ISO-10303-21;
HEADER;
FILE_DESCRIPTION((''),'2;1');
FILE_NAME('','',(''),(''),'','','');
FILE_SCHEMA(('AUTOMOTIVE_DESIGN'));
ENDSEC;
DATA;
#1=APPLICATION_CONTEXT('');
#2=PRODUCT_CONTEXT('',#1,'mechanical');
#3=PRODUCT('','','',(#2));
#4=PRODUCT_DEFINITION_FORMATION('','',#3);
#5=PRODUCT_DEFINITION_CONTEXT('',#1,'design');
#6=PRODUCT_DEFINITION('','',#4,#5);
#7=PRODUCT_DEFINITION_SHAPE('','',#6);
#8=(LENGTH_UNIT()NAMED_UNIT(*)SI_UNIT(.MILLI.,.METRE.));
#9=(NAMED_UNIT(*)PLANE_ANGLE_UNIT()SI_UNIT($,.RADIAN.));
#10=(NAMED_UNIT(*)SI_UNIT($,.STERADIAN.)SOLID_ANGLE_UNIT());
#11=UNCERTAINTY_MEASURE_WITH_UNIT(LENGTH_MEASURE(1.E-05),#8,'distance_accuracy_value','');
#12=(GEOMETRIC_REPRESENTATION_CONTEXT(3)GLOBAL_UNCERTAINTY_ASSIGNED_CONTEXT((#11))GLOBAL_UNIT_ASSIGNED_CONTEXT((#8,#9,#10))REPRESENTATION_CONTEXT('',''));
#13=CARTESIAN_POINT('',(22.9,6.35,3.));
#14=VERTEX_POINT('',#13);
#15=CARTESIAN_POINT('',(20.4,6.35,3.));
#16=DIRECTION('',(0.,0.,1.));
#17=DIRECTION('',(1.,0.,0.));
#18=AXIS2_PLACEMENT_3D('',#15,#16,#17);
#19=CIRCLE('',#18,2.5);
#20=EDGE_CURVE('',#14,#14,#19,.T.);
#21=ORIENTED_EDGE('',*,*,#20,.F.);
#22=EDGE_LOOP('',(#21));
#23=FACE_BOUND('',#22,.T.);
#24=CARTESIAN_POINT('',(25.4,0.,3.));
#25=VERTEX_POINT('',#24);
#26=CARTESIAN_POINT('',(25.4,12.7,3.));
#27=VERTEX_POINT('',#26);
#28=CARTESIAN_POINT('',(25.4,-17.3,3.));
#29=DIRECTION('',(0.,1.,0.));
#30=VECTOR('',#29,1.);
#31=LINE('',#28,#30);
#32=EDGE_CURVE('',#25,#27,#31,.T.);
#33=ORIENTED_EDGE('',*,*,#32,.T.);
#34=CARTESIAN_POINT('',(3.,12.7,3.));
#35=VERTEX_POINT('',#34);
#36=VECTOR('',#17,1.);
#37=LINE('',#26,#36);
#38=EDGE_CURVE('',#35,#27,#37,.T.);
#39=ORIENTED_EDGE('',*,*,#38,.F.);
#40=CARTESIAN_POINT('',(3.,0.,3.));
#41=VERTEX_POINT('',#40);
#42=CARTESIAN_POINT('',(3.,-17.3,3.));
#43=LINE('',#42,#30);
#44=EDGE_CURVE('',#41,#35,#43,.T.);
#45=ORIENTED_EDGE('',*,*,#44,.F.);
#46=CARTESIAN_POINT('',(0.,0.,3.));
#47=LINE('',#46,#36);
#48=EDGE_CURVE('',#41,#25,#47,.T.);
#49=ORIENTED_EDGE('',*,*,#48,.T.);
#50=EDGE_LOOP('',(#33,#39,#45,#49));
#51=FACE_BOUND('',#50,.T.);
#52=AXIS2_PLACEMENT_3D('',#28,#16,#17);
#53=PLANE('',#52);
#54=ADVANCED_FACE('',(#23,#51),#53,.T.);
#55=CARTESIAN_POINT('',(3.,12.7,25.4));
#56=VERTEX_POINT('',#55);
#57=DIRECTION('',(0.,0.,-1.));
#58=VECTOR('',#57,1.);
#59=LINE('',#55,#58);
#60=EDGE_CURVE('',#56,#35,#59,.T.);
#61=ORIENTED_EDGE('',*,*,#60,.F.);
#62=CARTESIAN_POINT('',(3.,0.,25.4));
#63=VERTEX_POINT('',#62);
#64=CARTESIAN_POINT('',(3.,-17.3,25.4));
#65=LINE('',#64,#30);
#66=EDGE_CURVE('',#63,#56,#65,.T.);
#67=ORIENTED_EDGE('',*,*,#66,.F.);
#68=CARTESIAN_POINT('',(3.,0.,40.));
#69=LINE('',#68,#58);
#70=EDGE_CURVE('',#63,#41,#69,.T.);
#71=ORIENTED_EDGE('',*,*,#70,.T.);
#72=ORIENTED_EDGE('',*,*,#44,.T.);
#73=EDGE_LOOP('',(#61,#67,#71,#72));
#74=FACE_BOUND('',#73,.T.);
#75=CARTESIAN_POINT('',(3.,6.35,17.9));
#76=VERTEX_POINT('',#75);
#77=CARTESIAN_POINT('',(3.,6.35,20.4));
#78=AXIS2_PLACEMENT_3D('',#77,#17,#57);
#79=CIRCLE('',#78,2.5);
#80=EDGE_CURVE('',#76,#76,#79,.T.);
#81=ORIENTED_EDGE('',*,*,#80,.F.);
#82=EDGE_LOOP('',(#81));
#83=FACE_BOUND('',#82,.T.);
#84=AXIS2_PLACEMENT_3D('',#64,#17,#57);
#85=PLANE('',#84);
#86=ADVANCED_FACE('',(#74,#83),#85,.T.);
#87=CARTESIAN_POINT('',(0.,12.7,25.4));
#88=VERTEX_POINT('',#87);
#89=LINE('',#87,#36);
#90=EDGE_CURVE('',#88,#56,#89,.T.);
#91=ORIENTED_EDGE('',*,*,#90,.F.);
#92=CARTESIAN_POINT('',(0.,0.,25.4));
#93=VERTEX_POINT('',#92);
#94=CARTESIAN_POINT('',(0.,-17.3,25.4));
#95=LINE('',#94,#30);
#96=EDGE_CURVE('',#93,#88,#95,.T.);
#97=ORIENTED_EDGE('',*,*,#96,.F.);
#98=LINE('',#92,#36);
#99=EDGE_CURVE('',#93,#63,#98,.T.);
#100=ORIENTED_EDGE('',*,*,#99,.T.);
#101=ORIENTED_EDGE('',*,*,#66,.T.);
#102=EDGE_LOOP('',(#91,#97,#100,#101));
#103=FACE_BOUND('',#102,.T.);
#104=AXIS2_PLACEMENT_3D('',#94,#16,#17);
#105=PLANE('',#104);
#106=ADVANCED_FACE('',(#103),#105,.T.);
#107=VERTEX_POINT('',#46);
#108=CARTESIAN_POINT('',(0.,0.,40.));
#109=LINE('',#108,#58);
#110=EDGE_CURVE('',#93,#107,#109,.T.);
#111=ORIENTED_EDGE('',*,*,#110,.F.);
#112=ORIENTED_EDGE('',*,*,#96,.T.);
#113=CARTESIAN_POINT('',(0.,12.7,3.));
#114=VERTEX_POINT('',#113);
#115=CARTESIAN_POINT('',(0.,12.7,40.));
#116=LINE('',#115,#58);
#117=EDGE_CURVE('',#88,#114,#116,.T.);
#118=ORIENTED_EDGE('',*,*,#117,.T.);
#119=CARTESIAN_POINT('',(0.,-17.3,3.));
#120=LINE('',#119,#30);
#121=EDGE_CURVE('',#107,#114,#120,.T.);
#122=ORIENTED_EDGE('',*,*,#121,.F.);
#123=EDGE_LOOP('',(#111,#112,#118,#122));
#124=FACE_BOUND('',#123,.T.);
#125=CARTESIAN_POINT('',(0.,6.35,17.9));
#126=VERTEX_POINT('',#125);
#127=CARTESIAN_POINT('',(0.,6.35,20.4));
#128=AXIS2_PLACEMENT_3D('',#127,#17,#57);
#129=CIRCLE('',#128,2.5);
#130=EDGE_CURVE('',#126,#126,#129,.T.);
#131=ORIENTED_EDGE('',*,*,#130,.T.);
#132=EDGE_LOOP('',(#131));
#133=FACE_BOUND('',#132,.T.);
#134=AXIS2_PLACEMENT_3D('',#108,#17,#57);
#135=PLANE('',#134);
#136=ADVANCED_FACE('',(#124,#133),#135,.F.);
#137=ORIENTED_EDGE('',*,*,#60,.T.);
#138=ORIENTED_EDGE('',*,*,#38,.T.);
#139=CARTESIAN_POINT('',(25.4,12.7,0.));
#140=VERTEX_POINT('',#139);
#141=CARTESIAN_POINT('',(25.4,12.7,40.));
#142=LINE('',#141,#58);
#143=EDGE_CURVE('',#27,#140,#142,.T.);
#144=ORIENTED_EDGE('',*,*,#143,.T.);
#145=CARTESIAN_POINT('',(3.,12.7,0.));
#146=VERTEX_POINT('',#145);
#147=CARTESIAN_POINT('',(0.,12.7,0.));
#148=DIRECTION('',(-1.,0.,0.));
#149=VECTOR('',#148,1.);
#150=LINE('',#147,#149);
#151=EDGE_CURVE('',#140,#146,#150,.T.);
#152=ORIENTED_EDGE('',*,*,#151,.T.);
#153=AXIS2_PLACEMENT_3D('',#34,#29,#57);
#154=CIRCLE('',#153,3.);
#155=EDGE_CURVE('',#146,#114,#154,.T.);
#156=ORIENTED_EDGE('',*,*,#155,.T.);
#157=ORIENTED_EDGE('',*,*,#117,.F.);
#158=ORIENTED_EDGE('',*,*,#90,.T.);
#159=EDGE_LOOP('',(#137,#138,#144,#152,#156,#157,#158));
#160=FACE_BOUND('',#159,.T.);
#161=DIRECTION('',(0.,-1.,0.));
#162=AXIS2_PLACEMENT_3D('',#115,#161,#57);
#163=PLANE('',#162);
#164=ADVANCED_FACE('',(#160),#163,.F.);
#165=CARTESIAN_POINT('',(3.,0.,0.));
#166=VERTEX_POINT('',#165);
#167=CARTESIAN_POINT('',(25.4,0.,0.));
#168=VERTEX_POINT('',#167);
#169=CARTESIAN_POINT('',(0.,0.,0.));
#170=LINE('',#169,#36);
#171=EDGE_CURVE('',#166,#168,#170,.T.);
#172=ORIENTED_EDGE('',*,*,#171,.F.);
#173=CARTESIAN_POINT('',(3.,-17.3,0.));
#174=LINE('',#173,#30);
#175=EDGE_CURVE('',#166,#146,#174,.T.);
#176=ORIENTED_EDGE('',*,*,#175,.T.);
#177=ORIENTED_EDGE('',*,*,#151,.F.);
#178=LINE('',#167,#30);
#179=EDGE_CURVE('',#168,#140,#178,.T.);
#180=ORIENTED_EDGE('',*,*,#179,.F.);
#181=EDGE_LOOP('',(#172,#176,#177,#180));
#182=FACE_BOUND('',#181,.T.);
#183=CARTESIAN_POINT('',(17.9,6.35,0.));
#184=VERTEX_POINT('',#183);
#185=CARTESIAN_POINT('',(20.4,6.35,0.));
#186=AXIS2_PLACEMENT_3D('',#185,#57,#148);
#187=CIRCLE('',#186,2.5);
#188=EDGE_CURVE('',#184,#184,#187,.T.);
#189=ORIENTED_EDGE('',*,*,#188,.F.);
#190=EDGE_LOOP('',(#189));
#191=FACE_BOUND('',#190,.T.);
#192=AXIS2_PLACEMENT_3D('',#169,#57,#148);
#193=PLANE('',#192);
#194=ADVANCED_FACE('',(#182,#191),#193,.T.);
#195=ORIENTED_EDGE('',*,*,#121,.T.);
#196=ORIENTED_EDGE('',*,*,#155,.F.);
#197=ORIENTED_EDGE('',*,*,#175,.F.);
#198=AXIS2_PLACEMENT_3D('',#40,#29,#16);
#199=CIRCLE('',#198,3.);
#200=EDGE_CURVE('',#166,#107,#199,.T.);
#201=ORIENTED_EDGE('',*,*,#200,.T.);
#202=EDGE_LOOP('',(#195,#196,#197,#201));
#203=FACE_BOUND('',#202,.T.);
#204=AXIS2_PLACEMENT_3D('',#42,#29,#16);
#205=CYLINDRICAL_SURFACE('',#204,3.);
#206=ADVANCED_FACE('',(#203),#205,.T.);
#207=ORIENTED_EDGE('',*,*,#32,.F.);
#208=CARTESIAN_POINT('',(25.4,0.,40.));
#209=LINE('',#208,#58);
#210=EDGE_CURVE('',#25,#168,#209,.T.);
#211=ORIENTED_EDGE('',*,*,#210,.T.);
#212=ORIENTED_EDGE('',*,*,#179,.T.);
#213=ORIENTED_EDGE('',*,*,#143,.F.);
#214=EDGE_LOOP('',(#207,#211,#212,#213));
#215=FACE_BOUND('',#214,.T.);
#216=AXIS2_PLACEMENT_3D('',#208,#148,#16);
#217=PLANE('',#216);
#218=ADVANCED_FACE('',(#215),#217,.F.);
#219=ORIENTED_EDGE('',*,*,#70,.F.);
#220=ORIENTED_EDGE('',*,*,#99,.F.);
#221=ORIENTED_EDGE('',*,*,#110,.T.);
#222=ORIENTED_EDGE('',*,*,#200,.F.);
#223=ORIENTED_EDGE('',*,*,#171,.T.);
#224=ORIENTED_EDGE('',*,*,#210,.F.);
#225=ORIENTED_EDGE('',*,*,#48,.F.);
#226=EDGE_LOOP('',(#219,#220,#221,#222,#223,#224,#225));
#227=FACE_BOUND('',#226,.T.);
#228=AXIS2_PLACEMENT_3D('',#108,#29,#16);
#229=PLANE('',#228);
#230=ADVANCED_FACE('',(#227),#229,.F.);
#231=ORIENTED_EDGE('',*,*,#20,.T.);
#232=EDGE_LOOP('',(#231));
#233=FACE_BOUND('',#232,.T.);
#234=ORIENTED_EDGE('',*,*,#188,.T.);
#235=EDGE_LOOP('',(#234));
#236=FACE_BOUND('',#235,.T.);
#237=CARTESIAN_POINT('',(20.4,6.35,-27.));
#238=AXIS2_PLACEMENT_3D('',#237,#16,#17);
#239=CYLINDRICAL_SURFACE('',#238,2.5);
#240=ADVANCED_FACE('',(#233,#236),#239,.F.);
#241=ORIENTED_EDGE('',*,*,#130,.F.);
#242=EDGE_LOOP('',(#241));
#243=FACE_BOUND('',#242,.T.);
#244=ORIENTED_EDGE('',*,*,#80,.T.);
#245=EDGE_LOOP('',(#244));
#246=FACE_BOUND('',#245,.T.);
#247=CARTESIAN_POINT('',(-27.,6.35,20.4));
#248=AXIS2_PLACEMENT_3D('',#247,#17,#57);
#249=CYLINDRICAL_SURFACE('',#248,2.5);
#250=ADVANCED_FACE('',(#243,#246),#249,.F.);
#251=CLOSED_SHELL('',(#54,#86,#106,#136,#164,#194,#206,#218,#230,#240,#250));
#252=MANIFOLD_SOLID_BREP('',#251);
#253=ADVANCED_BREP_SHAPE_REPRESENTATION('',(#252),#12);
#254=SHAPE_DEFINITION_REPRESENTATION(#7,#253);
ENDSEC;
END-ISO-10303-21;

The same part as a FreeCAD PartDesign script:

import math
import FreeCAD as App
import Part
import Sketcher
from FreeCAD import Vector
Q = App.Units.Quantity


def add_polygon(sketch, points):
    """Adds a closed chain of lines whose ends are joined by coincident constraints."""
    first, n = sketch.GeometryCount, len(points)
    for a, b in zip(points, points[1:] + points[:1]):
        sketch.addGeometry(Part.LineSegment(App.Vector(*a, 0), App.Vector(*b, 0)), False)
    for i in range(n):
        sketch.addConstraint(Sketcher.Constraint("Coincident", first + i, 2, first + (i + 1) % n, 1))

doc = App.newDocument("Part")
body = doc.addObject("PartDesign::Body", "Body")

# Sketch on XY plane
sketch1 = doc.addObject("Sketcher::SketchObject", "Sketch")
body.addObject(sketch1)
sketch1.AttachmentSupport = (doc.XY_Plane, [""])
sketch1.MapMode = "FlatFace"
add_polygon(sketch1, [(0, 13), (0, 0), (25, 0), (25, 13)])  # lines 0-3
sketch1.addConstraint([
    Sketcher.Constraint("Vertical", 0),
    Sketcher.Constraint("Horizontal", 1),
    Sketcher.Constraint("Vertical", 2),
    Sketcher.Constraint("Horizontal", 3),
    Sketcher.Constraint("Coincident", 0, 2, -1, 1),
    Sketcher.Constraint("DistanceX", 1, 1, 1, 2, Q("25.4 mm")),
    Sketcher.Constraint("DistanceY", 0, 2, 0, 1, Q("12.7 mm")),
])
pad1 = doc.addObject("PartDesign::Pad", "Pad")
body.addObject(pad1)
pad1.Profile = sketch1
pad1.Length = 40

# Sketch on XZ plane
sketch2 = doc.addObject("Sketcher::SketchObject", "Sketch001")
body.addObject(sketch2)
sketch2.AttachmentSupport = (doc.XZ_Plane, [""])
sketch2.MapMode = "FlatFace"
sketch2.AttachmentOffset = App.Placement(Vector(0, 0, -12.7), App.Rotation())
add_polygon(sketch2, [(-8.3, -7.5), (-8.3, 43.9), (32.5, 43.9), (32.5, -7.5)])  # lines 0-3
sketch2.addGeometry(Part.LineSegment(Vector(3, 0, 0), Vector(25.4, 0, 0)), False)  # 4
sketch2.addGeometry(Part.LineSegment(Vector(25.4, 0, 0), Vector(25.4, 3, 0)), False)  # 5
sketch2.addGeometry(Part.LineSegment(Vector(25.4, 3, 0), Vector(3, 3, 0)), False)  # 6
sketch2.addGeometry(Part.LineSegment(Vector(3, 3, 0), Vector(3, 25.4, 0)), False)  # 7
sketch2.addGeometry(Part.LineSegment(Vector(3, 25.4, 0), Vector(0, 25.4, 0)), False)  # 8
sketch2.addGeometry(Part.LineSegment(Vector(0, 25.4, 0), Vector(0, 3, 0)), False)  # 9
sketch2.addGeometry(Part.ArcOfCircle(Part.Circle(Vector(3, 3, 0), Vector(0, 0, 1), 3), math.radians(180), math.radians(270)), False)  # 10
sketch2.addConstraint([
    Sketcher.Constraint("Coincident", 4, 2, 5, 1),
    Sketcher.Constraint("Coincident", 5, 2, 6, 1),
    Sketcher.Constraint("Coincident", 6, 2, 7, 1),
    Sketcher.Constraint("Coincident", 7, 2, 8, 1),
    Sketcher.Constraint("Coincident", 8, 2, 9, 1),
    Sketcher.Constraint("Tangent", 9, 2, 10, 1),
    Sketcher.Constraint("Tangent", 10, 2, 4, 1),
    Sketcher.Constraint("Vertical", 0),
    Sketcher.Constraint("Horizontal", 1),
    Sketcher.Constraint("Vertical", 2),
    Sketcher.Constraint("Horizontal", 3),
    Sketcher.Constraint("Horizontal", 4),
    Sketcher.Constraint("Vertical", 5),
    Sketcher.Constraint("Horizontal", 6),
    Sketcher.Constraint("Vertical", 7),
    Sketcher.Constraint("Horizontal", 8),
    Sketcher.Constraint("Vertical", 9),
    Sketcher.Constraint("Coincident", 6, 2, 10, 3),
    Sketcher.Constraint("PointOnObject", 4, 2, -1),
    Sketcher.Constraint("PointOnObject", 8, 2, -2),
    Sketcher.Constraint("Equal", 6, 7),
    Sketcher.Constraint("Radius", 10, Q("3 mm")),
    Sketcher.Constraint("DistanceX", 4, 1, 4, 2, Q("22.4 mm")),
    Sketcher.Constraint("DistanceX", 1, 1, 1, 2, Q("40.869815 mm")),
    Sketcher.Constraint("DistanceY", 0, 1, 0, 2, Q("51.393724 mm")),
    Sketcher.Constraint("DistanceY", -1, 1, 0, 2, Q("43.909232 mm")),
    Sketcher.Constraint("DistanceX", -1, 1, 1, 2, Q("32.531911 mm")),
])
pocket1 = doc.addObject("PartDesign::Pocket", "Pocket")
body.addObject(pocket1)
pocket1.Profile = sketch2
pocket1.Length = 30
pocket1.Reversed = True

# Sketch on YZ plane
sketch3 = doc.addObject("Sketcher::SketchObject", "Sketch002")
body.addObject(sketch3)
sketch3.AttachmentSupport = (doc.YZ_Plane, [""])
sketch3.MapMode = "FlatFace"
sketch3.AttachmentOffset = App.Placement(Vector(0, 0, 3), App.Rotation())
sketch3.addGeometry(Part.Circle(Vector(6.3, 20.4, 0), Vector(0, 0, 1), 2.5), False)
sketch3.addConstraint([
    Sketcher.Constraint("Diameter", 0, Q("5 mm")),
    Sketcher.Constraint("DistanceY", -1, 1, 0, 3, Q("20.4 mm")),
    Sketcher.Constraint("DistanceX", -1, 1, 0, 3, Q("6.35 mm")),
])
pocket2 = doc.addObject("PartDesign::Pocket", "Pocket001")
body.addObject(pocket2)
pocket2.Profile = sketch3
pocket2.Length = 30

# Sketch on XY plane
sketch4 = doc.addObject("Sketcher::SketchObject", "Sketch003")
body.addObject(sketch4)
sketch4.AttachmentSupport = (doc.XY_Plane, [""])
sketch4.MapMode = "FlatFace"
sketch4.AttachmentOffset = App.Placement(Vector(0, 0, 3), App.Rotation())
sketch4.addGeometry(Part.Circle(Vector(20.4, 6.3, 0), Vector(0, 0, 1), 2.5), False)
sketch4.addConstraint([
    Sketcher.Constraint("Diameter", 0, Q("5 mm")),
    Sketcher.Constraint("DistanceX", -1, 1, 0, 3, Q("20.4 mm")),
    Sketcher.Constraint("DistanceY", -1, 1, 0, 3, Q("6.35 mm")),
])
pocket3 = doc.addObject("PartDesign::Pocket", "Pocket002")
body.addObject(pocket3)
pocket3.Profile = sketch4
pocket3.Length = 30

doc.recompute()
